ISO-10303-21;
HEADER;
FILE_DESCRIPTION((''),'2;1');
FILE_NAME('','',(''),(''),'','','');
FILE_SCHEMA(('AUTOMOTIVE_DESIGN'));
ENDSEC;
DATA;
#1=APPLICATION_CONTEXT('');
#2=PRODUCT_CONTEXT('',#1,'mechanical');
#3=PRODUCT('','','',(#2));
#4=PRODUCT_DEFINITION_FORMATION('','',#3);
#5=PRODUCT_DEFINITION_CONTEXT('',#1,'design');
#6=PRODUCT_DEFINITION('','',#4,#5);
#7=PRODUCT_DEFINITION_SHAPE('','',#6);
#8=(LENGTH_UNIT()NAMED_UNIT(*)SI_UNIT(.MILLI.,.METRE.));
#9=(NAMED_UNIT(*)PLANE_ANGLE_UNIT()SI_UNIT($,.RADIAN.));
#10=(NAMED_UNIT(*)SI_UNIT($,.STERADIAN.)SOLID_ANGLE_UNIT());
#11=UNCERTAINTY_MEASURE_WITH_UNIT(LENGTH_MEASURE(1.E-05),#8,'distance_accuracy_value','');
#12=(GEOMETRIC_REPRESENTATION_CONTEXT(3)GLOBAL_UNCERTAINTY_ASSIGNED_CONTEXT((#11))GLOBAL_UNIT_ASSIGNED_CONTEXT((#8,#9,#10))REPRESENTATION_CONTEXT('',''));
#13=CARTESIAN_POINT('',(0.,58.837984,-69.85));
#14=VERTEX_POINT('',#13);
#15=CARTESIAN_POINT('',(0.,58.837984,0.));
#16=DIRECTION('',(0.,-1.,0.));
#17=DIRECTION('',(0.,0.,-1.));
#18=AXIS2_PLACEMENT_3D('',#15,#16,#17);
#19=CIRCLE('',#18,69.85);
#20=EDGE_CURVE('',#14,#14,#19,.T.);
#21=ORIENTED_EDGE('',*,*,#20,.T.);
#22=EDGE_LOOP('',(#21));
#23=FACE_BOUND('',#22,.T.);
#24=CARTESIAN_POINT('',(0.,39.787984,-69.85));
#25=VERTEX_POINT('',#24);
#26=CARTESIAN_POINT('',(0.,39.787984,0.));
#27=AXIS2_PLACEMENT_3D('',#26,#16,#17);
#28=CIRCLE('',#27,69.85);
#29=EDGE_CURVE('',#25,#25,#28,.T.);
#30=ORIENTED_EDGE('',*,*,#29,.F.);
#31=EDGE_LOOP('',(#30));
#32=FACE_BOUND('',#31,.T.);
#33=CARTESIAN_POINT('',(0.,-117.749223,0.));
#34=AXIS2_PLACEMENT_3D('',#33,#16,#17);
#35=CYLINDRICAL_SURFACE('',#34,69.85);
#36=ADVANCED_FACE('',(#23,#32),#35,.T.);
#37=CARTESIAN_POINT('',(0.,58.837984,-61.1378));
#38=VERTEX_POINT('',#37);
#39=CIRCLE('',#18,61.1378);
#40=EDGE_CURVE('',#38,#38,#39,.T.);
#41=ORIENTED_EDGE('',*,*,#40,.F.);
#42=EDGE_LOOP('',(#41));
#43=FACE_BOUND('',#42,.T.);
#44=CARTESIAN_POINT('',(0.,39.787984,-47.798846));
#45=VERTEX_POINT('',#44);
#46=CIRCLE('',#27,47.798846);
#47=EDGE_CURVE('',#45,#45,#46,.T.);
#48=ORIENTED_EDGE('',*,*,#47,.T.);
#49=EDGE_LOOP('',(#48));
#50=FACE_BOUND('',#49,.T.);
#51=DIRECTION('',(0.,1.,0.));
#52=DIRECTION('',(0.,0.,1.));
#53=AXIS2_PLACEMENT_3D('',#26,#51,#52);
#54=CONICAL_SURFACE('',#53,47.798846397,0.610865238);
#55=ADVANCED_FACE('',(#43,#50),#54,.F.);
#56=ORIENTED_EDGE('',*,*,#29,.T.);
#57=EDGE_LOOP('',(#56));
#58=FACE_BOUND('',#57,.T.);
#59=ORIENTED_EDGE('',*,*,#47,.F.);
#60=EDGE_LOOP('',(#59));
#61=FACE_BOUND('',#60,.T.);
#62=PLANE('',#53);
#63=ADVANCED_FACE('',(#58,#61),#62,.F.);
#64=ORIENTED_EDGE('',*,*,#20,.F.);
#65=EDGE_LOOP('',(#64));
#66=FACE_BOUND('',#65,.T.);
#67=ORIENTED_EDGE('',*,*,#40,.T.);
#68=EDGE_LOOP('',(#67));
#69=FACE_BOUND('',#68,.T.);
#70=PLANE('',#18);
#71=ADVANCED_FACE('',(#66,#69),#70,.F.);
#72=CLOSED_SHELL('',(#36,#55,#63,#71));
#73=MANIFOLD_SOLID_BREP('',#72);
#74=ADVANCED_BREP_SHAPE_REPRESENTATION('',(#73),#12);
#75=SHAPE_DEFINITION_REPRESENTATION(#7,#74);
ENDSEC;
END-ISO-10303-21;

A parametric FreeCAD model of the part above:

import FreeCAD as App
import Part
import Sketcher
from FreeCAD import Vector
Q = App.Units.Quantity


def add_polygon(sketch, points):
    """Adds a closed chain of lines whose ends are joined by coincident constraints."""
    first, n = sketch.GeometryCount, len(points)
    for a, b in zip(points, points[1:] + points[:1]):
        sketch.addGeometry(Part.LineSegment(App.Vector(*a, 0), App.Vector(*b, 0)), False)
    for i in range(n):
        sketch.addConstraint(Sketcher.Constraint("Coincident", first + i, 2, first + (i + 1) % n, 1))

doc = App.newDocument("Part")
body = doc.addObject("PartDesign::Body", "Body")

sketch1 = body.newObject("Sketcher::SketchObject", "Sketch")
sketch1.AttachmentSupport = (doc.getObject("XY_Plane"), [""])
sketch1.MapMode = "FlatFace"
add_polygon(sketch1, [(-48, 40), (-61, 59), (-70, 59), (-70, 40)])
sketch1.addConstraint([
    Sketcher.Constraint("Horizontal", 1),
    Sketcher.Constraint("Vertical", 2),
    Sketcher.Constraint("Horizontal", 3),
    Sketcher.Constraint("Angle", 0, Q("125 deg")),
    Sketcher.Constraint("DistanceY", 2, 2, 2, 1, Q("0.75 in")),
    Sketcher.Constraint("DistanceX", 1, 2, 1, 1, Q("0.343 in")),
    Sketcher.Constraint("DistanceX", 1, 2, -1, 1, Q("2.75 in")),
    Sketcher.Constraint("DistanceY", -1, 1, 0, 2, 58.837984),
])
revolution = body.newObject("PartDesign::Revolution", "Revolution")
revolution.Profile = sketch1
revolution.ReferenceAxis = (sketch1, ["V_Axis"])
revolution.Angle = 360

doc.recompute()
